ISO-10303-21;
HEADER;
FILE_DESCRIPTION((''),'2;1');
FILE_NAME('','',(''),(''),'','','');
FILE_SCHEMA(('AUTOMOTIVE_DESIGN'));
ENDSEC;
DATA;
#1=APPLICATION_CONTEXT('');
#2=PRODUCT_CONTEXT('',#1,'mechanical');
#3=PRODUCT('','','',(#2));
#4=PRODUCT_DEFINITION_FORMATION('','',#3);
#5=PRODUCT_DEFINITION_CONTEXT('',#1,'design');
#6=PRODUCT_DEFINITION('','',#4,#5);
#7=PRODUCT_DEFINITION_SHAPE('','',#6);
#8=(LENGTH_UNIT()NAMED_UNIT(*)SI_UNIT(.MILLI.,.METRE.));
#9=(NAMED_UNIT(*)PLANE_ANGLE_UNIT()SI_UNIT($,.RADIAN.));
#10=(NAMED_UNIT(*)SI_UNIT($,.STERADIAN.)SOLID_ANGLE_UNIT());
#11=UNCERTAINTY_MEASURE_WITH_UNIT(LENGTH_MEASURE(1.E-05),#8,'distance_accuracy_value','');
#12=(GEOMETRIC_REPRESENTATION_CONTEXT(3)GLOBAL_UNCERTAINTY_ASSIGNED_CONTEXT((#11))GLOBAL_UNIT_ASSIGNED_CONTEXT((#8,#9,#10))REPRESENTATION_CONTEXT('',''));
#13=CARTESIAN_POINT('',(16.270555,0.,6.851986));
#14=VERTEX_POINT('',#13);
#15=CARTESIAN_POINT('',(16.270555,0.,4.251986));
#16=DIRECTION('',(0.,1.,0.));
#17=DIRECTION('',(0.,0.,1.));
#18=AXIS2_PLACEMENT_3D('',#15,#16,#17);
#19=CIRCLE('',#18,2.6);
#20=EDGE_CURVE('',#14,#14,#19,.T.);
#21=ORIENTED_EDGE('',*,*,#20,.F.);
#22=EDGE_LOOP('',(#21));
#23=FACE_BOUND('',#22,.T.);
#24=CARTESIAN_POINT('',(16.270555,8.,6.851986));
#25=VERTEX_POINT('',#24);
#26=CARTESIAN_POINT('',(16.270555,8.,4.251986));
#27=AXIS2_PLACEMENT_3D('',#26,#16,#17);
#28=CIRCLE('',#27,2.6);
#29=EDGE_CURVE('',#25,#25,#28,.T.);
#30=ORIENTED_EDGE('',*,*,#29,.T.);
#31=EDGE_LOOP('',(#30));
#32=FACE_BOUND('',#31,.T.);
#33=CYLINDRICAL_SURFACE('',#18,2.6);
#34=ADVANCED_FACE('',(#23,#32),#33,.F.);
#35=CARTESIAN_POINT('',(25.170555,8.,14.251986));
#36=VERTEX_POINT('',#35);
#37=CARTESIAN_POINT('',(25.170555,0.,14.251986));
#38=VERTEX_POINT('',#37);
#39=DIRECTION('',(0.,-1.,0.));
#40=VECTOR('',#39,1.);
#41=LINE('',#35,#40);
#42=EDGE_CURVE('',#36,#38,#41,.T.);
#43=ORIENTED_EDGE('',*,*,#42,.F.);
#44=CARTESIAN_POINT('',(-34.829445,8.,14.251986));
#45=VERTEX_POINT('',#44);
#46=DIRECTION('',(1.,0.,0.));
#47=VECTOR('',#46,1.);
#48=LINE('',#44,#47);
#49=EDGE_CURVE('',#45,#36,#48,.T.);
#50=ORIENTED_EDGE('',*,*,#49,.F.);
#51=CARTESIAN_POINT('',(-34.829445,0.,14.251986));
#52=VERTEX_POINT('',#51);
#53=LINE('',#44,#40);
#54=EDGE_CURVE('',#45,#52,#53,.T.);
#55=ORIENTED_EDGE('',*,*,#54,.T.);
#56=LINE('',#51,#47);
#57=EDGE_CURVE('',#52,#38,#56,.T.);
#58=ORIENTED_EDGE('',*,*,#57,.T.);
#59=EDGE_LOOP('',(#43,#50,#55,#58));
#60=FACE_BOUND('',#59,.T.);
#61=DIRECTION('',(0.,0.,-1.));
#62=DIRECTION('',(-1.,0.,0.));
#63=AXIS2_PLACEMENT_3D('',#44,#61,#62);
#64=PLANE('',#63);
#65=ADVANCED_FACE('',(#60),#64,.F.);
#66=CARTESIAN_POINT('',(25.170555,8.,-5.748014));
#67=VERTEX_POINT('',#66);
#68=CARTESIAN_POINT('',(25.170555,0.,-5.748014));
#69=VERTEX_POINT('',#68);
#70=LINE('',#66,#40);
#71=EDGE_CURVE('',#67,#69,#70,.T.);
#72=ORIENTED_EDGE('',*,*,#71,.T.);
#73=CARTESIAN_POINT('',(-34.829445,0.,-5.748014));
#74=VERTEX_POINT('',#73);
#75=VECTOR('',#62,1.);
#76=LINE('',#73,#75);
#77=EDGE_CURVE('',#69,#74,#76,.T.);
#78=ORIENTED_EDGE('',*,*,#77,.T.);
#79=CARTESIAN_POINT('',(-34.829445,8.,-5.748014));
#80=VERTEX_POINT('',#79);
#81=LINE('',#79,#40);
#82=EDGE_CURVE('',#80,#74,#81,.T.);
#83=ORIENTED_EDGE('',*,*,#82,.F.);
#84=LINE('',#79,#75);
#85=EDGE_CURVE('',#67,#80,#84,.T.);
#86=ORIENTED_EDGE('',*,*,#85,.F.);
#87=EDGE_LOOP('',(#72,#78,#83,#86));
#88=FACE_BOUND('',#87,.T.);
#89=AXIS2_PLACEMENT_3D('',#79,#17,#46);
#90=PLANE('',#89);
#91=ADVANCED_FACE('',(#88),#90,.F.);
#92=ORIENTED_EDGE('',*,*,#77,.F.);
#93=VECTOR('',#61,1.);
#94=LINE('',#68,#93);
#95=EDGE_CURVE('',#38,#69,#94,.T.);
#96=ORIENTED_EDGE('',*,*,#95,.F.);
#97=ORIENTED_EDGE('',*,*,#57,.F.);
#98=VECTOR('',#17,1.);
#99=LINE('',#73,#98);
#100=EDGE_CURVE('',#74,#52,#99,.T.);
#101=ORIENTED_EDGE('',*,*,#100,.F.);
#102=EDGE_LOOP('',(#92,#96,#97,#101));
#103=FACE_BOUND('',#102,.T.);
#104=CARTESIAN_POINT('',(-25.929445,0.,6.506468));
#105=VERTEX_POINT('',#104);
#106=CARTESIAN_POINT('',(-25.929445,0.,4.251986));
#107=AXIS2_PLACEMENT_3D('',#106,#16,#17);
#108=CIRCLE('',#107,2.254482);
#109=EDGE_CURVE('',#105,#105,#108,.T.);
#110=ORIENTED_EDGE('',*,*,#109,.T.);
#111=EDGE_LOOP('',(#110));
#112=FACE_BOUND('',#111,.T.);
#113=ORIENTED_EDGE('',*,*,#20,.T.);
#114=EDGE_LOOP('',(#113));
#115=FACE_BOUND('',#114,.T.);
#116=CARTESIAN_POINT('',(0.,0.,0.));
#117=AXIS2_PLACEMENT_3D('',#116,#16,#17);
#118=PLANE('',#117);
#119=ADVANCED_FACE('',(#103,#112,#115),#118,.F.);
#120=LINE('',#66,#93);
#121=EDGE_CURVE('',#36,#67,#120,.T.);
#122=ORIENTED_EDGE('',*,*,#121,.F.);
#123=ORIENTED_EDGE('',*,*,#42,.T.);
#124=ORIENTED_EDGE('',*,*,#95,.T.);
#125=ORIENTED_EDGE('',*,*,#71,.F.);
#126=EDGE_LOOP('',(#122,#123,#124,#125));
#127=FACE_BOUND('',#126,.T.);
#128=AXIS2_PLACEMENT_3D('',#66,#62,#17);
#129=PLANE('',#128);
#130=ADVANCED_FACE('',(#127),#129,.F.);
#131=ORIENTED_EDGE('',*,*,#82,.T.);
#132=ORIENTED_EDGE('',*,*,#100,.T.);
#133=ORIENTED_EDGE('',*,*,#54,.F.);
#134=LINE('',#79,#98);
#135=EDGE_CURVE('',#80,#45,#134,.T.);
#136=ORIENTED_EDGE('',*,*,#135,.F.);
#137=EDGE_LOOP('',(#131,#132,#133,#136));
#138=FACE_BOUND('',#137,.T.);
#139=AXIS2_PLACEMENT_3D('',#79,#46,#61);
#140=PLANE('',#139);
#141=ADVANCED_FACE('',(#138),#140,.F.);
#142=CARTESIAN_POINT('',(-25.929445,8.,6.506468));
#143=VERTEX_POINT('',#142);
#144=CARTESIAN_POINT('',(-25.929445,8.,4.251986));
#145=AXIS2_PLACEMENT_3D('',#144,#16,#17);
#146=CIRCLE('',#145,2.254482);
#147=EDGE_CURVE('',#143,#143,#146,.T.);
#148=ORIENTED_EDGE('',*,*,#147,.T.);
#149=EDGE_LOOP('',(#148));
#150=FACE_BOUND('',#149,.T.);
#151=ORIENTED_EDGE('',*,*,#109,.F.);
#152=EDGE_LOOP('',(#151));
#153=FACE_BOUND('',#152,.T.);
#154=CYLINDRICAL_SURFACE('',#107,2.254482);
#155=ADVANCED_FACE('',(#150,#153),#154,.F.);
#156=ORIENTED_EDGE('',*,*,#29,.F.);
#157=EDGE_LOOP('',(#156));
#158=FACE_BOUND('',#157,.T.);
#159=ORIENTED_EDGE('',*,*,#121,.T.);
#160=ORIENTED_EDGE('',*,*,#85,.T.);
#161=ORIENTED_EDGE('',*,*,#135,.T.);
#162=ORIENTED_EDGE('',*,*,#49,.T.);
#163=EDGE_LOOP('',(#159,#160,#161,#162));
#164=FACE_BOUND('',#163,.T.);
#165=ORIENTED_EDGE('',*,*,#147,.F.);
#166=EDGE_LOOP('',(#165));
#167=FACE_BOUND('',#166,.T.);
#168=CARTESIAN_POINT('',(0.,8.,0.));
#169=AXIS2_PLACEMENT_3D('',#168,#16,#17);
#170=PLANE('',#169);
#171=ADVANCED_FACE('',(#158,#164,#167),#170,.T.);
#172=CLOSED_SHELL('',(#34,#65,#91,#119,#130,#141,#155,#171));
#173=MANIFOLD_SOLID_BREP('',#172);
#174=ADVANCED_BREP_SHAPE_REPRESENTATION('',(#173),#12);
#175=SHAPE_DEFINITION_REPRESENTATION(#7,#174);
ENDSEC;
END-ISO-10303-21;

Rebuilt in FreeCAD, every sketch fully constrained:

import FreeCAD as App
import Part
import Sketcher
from FreeCAD import Vector

doc = App.newDocument("Part")
body = doc.addObject("PartDesign::Body", "Body")

sketch1 = body.newObject("Sketcher::SketchObject", "Sketch")
sketch1.AttachmentSupport = (doc.getObject("XZ_Plane"), [""])
sketch1.MapMode = "FlatFace"
sketch1.addGeometry([
    Part.LineSegment(Vector(-35, -6, 0), Vector(-35, 14, 0)),
    Part.LineSegment(Vector(-35, 14, 0), Vector(25, 14, 0)),
    Part.LineSegment(Vector(25, 14, 0), Vector(25, -6, 0)),
    Part.LineSegment(Vector(25, -6, 0), Vector(-35, -6, 0)),
], False)
sketch1.addConstraint([
    Sketcher.Constraint("Coincident", 0, 2, 1, 1),
    Sketcher.Constraint("Coincident", 1, 2, 2, 1),
    Sketcher.Constraint("Coincident", 2, 2, 3, 1),
    Sketcher.Constraint("Coincident", 3, 2, 0, 1),
    Sketcher.Constraint("Vertical", 0),
    Sketcher.Constraint("Horizontal", 1),
    Sketcher.Constraint("Vertical", 2),
    Sketcher.Constraint("Horizontal", 3),
    Sketcher.Constraint("DistanceX", 1, 1, 1, 2, 60.0),
    Sketcher.Constraint("DistanceY", 0, 1, 0, 2, 20.0),
    Sketcher.Constraint("DistanceX", 0, 2, -1, 1, 34.829445),
    Sketcher.Constraint("DistanceY", -1, 1, 0, 2, 14.251986),
])
pad1 = body.newObject("PartDesign::Pad", "Pad")
pad1.Profile = sketch1
pad1.Length = 8
pad1.Reversed = True

sketch2 = body.newObject("Sketcher::SketchObject", "Sketch001")
sketch2.AttachmentSupport = (doc.getObject("XZ_Plane"), [""])
sketch2.MapMode = "FlatFace"
sketch2.AttachmentOffset = App.Placement(Vector(0, 0, -8), App.Rotation())
sketch2.addGeometry([
    Part.Circle(Vector(-25.9, 4.3, 0), Vector(0, 0, 1), 2.3),
    Part.Circle(Vector(16.3, 4.3, 0), Vector(0, 0, 1), 2.6),
], False)
sketch2.addConstraint([
    Sketcher.Constraint("Horizontal", 0, 3, 1, 3),
    Sketcher.Constraint("Diameter", 1, 5.2),
    Sketcher.Constraint("DistanceX", 0, 3, 1, 3, 42.2),
    Sketcher.Constraint("Diameter", 0, 4.508964),
    Sketcher.Constraint("DistanceX", 0, 3, -1, 1, 25.929445),
    Sketcher.Constraint("DistanceY", -1, 1, 0, 3, 4.251986),
])
pocket1 = body.newObject("PartDesign::Pocket", "Pocket")
pocket1.Profile = sketch2
pocket1.Type = "ThroughAll"
pocket1.Reversed = True

doc.recompute()
